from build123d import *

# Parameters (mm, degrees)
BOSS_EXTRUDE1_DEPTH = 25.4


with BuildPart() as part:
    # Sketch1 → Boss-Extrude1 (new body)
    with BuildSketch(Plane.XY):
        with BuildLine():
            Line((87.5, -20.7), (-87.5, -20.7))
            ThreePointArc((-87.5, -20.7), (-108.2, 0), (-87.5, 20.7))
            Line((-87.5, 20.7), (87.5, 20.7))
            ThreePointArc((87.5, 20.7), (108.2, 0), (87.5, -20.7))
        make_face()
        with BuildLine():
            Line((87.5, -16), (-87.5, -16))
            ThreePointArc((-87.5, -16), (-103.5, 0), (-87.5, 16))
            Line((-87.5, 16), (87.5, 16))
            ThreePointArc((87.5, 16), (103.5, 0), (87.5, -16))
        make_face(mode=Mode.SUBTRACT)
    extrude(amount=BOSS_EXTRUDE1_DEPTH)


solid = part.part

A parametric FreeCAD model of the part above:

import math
import FreeCAD as App
import Part
import Sketcher

V = App.Vector

doc = App.newDocument("Part")
params = doc.addObject("Spreadsheet::Sheet", "Params")
for row, (alias, value) in enumerate([
    ("sketch1_radius", "16 mm"),
    ("sketch1_radius2", "20.7 mm"),
    ("sketch1_width", "175 mm"),
    ("pad1_length", "25.4 mm"),
], start=1):
    params.set(f"A{row}", alias)
    params.set(f"B{row}", "=" + value)
    params.setAlias(f"B{row}", alias)

body = doc.addObject("PartDesign::Body", "Body")

sketch1 = body.newObject("Sketcher::SketchObject", "Sketch")
sketch1.AttachmentSupport = (doc.getObject("XY_Plane"), [""])
sketch1.MapMode = "FlatFace"
sketch1.addGeometry(Part.LineSegment(V(-88, -21, 0), V(88, -21, 0)), False)
sketch1.addGeometry(Part.ArcOfCircle(Part.Circle(V(88, 0, 0), V(0, 0, 1), 21), math.radians(-90), math.radians(90)), False)
sketch1.addGeometry(Part.LineSegment(V(88, 21, 0), V(-88, 21, 0)), False)
sketch1.addGeometry(Part.ArcOfCircle(Part.Circle(V(-88, 0, 0), V(0, 0, 1), 21), math.radians(90), math.radians(270)), False)
sketch1.addGeometry(Part.LineSegment(V(88, -16, 0), V(-88, -16, 0)), False)
sketch1.addGeometry(Part.ArcOfCircle(Part.Circle(V(-88, 0, 0), V(0, 0, 1), 16), math.radians(90), math.radians(270)), False)
sketch1.addGeometry(Part.LineSegment(V(-88, 16, 0), V(88, 16, 0)), False)
sketch1.addGeometry(Part.ArcOfCircle(Part.Circle(V(88, 0, 0), V(0, 0, 1), 16), math.radians(-90), math.radians(90)), False)
sketch1.addConstraint(Sketcher.Constraint("Tangent", 0, 2, 1, 1))
sketch1.addConstraint(Sketcher.Constraint("Tangent", 1, 2, 2, 1))
sketch1.addConstraint(Sketcher.Constraint("Tangent", 2, 2, 3, 1))
sketch1.addConstraint(Sketcher.Constraint("Tangent", 3, 2, 0, 1))
sketch1.addConstraint(Sketcher.Constraint("Tangent", 4, 2, 5, 2))
sketch1.addConstraint(Sketcher.Constraint("Tangent", 5, 1, 6, 1))
sketch1.addConstraint(Sketcher.Constraint("Tangent", 6, 2, 7, 2))
sketch1.addConstraint(Sketcher.Constraint("Tangent", 7, 1, 4, 1))
sketch1.addConstraint(Sketcher.Constraint("Horizontal", 0))
sketch1.addConstraint(Sketcher.Constraint("Horizontal", 2))
sketch1.addConstraint(Sketcher.Constraint("Horizontal", 4))
sketch1.addConstraint(Sketcher.Constraint("Horizontal", 6))
sketch1.addConstraint(Sketcher.Constraint("Coincident", 5, 3, 3, 3))
sketch1.addConstraint(Sketcher.Constraint("Symmetric", 1, 3, 3, 3, -1, 1))
sketch1.addConstraint(Sketcher.Constraint("Vertical", 7, 3, 0, 2))
sketch1.addConstraint(Sketcher.Constraint("Radius", 5, 16.0))
sketch1.addConstraint(Sketcher.Constraint("Radius", 1, 20.7))
sketch1.addConstraint(Sketcher.Constraint("DistanceX", 0, 1, 0, 2, 175.0))
sketch1.setExpression("Constraints[15]", "Params.sketch1_radius")
sketch1.setExpression("Constraints[16]", "Params.sketch1_radius2")
sketch1.setExpression("Constraints[17]", "Params.sketch1_width")
pad1 = body.newObject("PartDesign::Pad", "Pad")
pad1.Profile = sketch1
pad1.setExpression("Length", "Params.pad1_length")

doc.recompute()
